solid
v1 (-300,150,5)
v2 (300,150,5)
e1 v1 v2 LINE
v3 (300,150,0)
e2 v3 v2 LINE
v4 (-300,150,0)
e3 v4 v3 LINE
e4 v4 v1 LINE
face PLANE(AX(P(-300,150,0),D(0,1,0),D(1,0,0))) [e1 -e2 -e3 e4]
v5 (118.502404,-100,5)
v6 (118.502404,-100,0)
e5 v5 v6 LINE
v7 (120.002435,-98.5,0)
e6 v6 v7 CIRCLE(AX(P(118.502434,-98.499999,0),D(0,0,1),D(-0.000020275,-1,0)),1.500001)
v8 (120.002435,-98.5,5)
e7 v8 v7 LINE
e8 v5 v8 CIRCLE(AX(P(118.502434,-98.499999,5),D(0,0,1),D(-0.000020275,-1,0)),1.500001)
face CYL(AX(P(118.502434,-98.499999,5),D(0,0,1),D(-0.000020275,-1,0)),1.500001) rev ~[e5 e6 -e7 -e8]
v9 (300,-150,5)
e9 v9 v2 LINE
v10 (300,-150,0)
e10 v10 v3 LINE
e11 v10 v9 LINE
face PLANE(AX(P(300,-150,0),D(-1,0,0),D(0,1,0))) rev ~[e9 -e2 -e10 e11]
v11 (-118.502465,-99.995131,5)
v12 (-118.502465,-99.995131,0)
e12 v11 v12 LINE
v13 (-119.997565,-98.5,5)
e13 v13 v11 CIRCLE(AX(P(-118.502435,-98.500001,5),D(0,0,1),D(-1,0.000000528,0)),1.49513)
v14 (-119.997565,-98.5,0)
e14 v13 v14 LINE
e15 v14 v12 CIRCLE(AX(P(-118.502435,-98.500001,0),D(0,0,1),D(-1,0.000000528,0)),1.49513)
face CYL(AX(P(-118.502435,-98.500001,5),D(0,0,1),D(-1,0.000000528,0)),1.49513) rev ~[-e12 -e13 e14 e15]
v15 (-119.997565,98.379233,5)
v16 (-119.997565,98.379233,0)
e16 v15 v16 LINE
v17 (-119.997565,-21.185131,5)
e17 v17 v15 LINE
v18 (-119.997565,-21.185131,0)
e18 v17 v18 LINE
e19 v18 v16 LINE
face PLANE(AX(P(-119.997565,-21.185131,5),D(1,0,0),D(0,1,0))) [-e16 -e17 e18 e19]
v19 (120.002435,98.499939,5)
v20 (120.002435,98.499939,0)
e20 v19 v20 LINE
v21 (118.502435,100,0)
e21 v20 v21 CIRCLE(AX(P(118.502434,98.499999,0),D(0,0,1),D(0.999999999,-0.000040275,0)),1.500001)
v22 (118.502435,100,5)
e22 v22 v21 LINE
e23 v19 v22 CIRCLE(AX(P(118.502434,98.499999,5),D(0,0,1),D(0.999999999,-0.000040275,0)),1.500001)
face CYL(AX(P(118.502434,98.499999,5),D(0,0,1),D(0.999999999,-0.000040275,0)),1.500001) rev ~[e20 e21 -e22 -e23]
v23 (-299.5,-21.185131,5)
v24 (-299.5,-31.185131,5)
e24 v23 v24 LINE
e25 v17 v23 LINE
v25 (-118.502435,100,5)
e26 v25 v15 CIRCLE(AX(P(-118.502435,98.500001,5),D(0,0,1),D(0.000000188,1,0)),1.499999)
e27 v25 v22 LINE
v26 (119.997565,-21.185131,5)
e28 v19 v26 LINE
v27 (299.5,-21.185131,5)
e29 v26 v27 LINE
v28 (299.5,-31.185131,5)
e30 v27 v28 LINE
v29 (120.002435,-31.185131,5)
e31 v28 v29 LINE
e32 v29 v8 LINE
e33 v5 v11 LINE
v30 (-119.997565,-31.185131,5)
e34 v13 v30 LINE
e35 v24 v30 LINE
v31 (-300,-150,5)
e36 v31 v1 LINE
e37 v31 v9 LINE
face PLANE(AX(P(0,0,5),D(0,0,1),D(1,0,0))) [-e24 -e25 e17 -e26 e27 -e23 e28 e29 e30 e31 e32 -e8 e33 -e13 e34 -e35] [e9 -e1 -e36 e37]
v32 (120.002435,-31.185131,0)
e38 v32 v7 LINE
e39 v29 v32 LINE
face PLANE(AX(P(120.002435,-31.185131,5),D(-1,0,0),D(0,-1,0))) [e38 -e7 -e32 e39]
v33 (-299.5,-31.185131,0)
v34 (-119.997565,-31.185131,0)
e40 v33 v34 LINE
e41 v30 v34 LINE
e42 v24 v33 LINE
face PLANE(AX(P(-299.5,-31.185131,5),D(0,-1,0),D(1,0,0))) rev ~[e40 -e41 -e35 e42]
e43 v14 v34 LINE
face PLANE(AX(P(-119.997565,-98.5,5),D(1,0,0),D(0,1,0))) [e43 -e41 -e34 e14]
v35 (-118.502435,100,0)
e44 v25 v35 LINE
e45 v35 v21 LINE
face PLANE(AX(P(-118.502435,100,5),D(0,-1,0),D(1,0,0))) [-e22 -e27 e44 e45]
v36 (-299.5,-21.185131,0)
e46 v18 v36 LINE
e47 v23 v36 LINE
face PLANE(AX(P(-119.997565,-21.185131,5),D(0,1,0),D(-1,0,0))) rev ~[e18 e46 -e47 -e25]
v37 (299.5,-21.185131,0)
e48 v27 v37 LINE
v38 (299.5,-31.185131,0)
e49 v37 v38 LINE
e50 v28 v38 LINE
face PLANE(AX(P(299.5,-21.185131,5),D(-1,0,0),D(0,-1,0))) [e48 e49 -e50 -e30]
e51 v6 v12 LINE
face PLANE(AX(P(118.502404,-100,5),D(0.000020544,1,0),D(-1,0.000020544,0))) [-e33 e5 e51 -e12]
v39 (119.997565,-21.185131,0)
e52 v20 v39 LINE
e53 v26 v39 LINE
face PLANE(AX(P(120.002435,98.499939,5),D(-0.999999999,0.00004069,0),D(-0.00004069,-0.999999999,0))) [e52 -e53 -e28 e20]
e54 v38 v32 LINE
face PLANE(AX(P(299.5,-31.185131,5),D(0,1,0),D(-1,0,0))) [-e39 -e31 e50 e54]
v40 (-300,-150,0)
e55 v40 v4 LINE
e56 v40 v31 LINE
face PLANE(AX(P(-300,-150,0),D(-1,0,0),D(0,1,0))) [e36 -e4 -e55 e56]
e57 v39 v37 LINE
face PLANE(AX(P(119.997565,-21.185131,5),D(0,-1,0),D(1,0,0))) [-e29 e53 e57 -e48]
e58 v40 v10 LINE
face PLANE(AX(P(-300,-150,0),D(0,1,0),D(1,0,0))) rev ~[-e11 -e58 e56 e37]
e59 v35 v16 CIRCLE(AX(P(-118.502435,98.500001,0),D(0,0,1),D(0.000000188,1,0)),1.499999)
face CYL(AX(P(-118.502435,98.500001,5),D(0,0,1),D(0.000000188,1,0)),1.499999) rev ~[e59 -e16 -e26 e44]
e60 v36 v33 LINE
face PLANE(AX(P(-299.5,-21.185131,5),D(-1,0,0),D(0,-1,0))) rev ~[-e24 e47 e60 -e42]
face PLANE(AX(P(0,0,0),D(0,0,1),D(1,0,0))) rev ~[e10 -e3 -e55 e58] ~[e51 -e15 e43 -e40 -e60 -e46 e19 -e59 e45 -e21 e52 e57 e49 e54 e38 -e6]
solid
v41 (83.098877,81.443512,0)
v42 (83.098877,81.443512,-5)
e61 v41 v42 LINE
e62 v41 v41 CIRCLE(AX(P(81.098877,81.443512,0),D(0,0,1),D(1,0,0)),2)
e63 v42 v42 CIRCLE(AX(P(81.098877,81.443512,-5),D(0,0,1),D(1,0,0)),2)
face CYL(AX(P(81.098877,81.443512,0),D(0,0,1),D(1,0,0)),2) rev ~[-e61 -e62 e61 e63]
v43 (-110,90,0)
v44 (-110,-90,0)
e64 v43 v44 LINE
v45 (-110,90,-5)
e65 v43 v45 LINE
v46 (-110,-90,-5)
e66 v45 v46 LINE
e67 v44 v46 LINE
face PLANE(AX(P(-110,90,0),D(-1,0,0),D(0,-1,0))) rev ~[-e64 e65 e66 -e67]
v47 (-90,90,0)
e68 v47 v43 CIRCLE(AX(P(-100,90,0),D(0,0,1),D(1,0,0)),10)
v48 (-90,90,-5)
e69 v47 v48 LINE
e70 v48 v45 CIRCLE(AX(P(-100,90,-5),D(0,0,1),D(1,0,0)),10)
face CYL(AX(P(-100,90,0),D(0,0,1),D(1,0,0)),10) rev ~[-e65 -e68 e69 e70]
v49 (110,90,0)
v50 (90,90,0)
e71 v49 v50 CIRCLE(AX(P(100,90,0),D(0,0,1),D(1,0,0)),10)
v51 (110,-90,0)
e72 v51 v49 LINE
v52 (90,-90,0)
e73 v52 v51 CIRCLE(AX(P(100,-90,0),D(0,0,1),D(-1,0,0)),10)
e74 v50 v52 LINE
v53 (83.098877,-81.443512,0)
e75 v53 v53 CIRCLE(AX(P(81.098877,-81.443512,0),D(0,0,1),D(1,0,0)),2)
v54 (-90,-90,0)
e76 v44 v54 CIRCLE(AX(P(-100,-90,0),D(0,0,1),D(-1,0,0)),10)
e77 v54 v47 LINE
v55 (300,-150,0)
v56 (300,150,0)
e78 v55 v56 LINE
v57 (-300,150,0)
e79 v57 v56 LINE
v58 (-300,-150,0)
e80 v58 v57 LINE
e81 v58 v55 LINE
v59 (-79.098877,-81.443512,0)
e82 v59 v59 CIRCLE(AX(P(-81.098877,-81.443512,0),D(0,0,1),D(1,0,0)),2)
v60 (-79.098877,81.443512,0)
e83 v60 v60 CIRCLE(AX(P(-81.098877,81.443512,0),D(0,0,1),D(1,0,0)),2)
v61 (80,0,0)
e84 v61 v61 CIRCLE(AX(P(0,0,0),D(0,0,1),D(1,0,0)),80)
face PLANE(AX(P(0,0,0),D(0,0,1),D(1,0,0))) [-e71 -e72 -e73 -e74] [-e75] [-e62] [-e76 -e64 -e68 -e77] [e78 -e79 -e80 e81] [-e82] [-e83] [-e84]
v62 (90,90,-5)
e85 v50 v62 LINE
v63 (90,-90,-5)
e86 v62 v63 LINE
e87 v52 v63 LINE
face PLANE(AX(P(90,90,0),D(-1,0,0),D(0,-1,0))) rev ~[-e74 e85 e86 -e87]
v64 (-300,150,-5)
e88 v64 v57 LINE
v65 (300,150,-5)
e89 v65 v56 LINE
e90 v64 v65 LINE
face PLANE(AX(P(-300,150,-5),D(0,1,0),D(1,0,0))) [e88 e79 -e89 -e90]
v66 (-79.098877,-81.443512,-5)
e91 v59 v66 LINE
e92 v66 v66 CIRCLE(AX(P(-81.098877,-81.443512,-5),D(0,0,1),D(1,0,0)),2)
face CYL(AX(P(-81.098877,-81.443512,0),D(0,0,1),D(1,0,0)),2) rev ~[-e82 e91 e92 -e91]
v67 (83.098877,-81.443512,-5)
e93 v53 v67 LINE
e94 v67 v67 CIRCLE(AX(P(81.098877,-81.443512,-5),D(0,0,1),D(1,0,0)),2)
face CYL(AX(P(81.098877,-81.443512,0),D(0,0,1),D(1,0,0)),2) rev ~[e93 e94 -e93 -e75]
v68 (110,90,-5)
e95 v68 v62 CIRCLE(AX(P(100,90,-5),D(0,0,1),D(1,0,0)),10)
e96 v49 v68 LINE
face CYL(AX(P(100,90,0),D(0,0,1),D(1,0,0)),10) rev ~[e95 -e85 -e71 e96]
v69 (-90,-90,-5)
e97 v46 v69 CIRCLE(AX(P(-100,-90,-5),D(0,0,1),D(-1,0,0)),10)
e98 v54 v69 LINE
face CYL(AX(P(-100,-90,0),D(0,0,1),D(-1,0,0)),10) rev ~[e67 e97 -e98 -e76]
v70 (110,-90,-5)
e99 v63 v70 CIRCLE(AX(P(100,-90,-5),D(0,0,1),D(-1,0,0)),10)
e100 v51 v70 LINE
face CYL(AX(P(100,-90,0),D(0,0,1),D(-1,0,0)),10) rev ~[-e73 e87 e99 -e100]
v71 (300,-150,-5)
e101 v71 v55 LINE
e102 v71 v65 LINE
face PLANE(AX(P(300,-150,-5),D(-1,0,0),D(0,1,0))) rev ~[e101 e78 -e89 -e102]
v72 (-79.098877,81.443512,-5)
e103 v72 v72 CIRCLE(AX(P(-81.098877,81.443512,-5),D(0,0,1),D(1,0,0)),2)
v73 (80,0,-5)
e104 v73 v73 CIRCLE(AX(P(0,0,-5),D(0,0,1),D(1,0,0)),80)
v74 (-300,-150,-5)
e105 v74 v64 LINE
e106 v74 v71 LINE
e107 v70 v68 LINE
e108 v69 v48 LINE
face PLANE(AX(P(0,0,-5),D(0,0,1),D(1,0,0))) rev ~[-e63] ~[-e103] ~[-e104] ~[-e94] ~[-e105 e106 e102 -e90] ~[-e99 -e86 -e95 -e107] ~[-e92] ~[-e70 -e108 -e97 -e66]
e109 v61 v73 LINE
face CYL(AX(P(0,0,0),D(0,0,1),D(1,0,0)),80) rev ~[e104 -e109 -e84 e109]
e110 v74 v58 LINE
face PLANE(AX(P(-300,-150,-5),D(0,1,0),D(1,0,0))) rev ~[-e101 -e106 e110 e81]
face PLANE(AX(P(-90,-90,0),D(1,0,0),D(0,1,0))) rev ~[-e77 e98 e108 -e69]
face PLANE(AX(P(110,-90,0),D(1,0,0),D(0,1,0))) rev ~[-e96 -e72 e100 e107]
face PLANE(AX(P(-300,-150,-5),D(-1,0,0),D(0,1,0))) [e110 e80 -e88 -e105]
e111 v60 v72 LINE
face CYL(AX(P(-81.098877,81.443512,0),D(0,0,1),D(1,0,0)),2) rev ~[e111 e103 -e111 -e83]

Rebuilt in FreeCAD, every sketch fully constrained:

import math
import FreeCAD as App
import Part
import Sketcher
from FreeCAD import Vector
Q = App.Units.Quantity

doc = App.newDocument("Part")
body = doc.addObject("PartDesign::Body", "Body")

# Sketch on XY plane
sketch1 = body.newObject("Sketcher::SketchObject", "Sketch")
sketch1.AttachmentSupport = (doc.getObject("XY_Plane"), [""])
sketch1.MapMode = "FlatFace"
sketch1.addGeometry([
    Part.LineSegment(Vector(-300, 150, 0), Vector(-300, -150, 0)),
    Part.LineSegment(Vector(-300, -150, 0), Vector(300, -150, 0)),
    Part.LineSegment(Vector(300, -150, 0), Vector(300, 150, 0)),
    Part.LineSegment(Vector(300, 150, 0), Vector(-300, 150, 0)),
], False)
sketch1.addConstraint([
    Sketcher.Constraint("Coincident", 0, 2, 1, 1),
    Sketcher.Constraint("Coincident", 1, 2, 2, 1),
    Sketcher.Constraint("Coincident", 2, 2, 3, 1),
    Sketcher.Constraint("Coincident", 3, 2, 0, 1),
    Sketcher.Constraint("Vertical", 0),
    Sketcher.Constraint("Horizontal", 1),
    Sketcher.Constraint("Vertical", 2),
    Sketcher.Constraint("Horizontal", 3),
    Sketcher.Constraint("Symmetric", 0, 2, 2, 2, -1, 1),
    Sketcher.Constraint("DistanceX", 1, 1, 1, 2, Q("600 mm")),
    Sketcher.Constraint("DistanceY", 0, 2, 0, 1, Q("300 mm")),
])
pad1 = body.newObject("PartDesign::Pad", "Pad")
pad1.Profile = sketch1
pad1.Length = 5

# Sketch on XY plane
sketch2 = body.newObject("Sketcher::SketchObject", "Sketch001")
sketch2.AttachmentSupport = (doc.getObject("XY_Plane"), [""])
sketch2.MapMode = "FlatFace"
sketch2.AttachmentOffset = App.Placement(Vector(0, 0, 5), App.Rotation())
sketch2.addGeometry([
    Part.LineSegment(Vector(118.5, 100, 0), Vector(-118.5, 100, 0)),  # 0
    Part.ArcOfCircle(Part.Circle(Vector(-118.5, 98.5, 0), Vector(0, 0, 1), 1.5), math.radians(90), math.radians(185)),  # 1
    Part.LineSegment(Vector(-120, 98.4, 0), Vector(-120, -21.2, 0)),  # 2
    Part.LineSegment(Vector(-120, -21.2, 0), Vector(-299.5, -21.2, 0)),  # 3
    Part.LineSegment(Vector(-299.5, -21.2, 0), Vector(-299.5, -31.2, 0)),  # 4
    Part.LineSegment(Vector(-299.5, -31.2, 0), Vector(-120, -31.2, 0)),  # 5
    Part.LineSegment(Vector(-120, -31.2, 0), Vector(-120, -98.5, 0)),  # 6
    Part.ArcOfCircle(Part.Circle(Vector(-118.5, -98.5, 0), Vector(0, 0, 1), 1.5), math.radians(180), math.radians(270)),  # 7
    Part.LineSegment(Vector(-118.5, -100, 0), Vector(118.5, -100, 0)),  # 8
    Part.ArcOfCircle(Part.Circle(Vector(118.5, -98.5, 0), Vector(0, 0, 1), 1.5), math.radians(-90), math.radians(0)),  # 9
    Part.LineSegment(Vector(120, -98.5, 0), Vector(120, -31.2, 0)),  # 10
    Part.LineSegment(Vector(120, -31.2, 0), Vector(299.5, -31.2, 0)),  # 11
    Part.LineSegment(Vector(299.5, -31.2, 0), Vector(299.5, -21.2, 0)),  # 12
    Part.LineSegment(Vector(299.5, -21.2, 0), Vector(120, -21.2, 0)),  # 13
    Part.LineSegment(Vector(120, -21.2, 0), Vector(120, 98.5, 0)),  # 14
    Part.ArcOfCircle(Part.Circle(Vector(118.5, 98.5, 0), Vector(0, 0, 1), 1.5), math.radians(0), math.radians(90)),  # 15
], False)
sketch2.addConstraint([
    Sketcher.Constraint("Tangent", 0, 2, 1, 1),
    Sketcher.Constraint("Coincident", 1, 2, 2, 1),
    Sketcher.Constraint("Coincident", 2, 2, 3, 1),
    Sketcher.Constraint("Coincident", 3, 2, 4, 1),
    Sketcher.Constraint("Coincident", 4, 2, 5, 1),
    Sketcher.Constraint("Coincident", 5, 2, 6, 1),
    Sketcher.Constraint("Tangent", 6, 2, 7, 1),
    Sketcher.Constraint("Tangent", 7, 2, 8, 1),
    Sketcher.Constraint("Tangent", 8, 2, 9, 1),
    Sketcher.Constraint("Tangent", 9, 2, 10, 1),
    Sketcher.Constraint("Coincident", 10, 2, 11, 1),
    Sketcher.Constraint("Coincident", 11, 2, 12, 1),
    Sketcher.Constraint("Coincident", 12, 2, 13, 1),
    Sketcher.Constraint("Coincident", 13, 2, 14, 1),
    Sketcher.Constraint("Tangent", 14, 2, 15, 1),
    Sketcher.Constraint("Tangent", 15, 2, 0, 1),
    Sketcher.Constraint("Horizontal", 0),
    Sketcher.Constraint("Vertical", 2),
    Sketcher.Constraint("Horizontal", 3),
    Sketcher.Constraint("Vertical", 4),
    Sketcher.Constraint("Horizontal", 5),
    Sketcher.Constraint("Vertical", 6),
    Sketcher.Constraint("Vertical", 10),
    Sketcher.Constraint("Horizontal", 11),
    Sketcher.Constraint("Vertical", 12),
    Sketcher.Constraint("Horizontal", 13),
    Sketcher.Constraint("Equal", 1, 9),
    Sketcher.Constraint("Equal", 9, 15),
    Sketcher.Constraint("Symmetric", 1, 3, 9, 3, -1, 1),
    Sketcher.Constraint("Symmetric", 7, 3, 15, 3, -1, 1),
    Sketcher.Constraint("Symmetric", 4, 2, 11, 2, -2),
    Sketcher.Constraint("Symmetric", 2, 2, 13, 2, -2),
    Sketcher.Constraint("Vertical", 1, 3, 7, 3),
    Sketcher.Constraint("Vertical", 2, 2, 5, 2),
    Sketcher.Constraint("Radius", 1, Q("1.499999 mm")),
    Sketcher.Constraint("DistanceY", 4, 2, 4, 1, Q("10 mm")),
    Sketcher.Constraint("DistanceY", -1, 1, 0, 2, Q("100 mm")),
    Sketcher.Constraint("DistanceX", 5, 2, 10, 2, Q("240 mm")),
    Sketcher.Constraint("DistanceX", 3, 2, -1, 1, Q("299.5 mm")),
    Sketcher.Constraint("Radius", 7, Q("1.49513 mm")),
    Sketcher.Constraint("DistanceY", 7, 2, 5, 2, Q("68.81 mm")),
])
pocket1 = body.newObject("PartDesign::Pocket", "Pocket")
pocket1.Profile = sketch2
pocket1.Length = 5
body2 = doc.addObject("PartDesign::Body", "Body001")

# Sketch on XY plane
sketch3 = body2.newObject("Sketcher::SketchObject", "Sketch002")
sketch3.AttachmentSupport = (doc.getObject("XY_Plane001"), [""])
sketch3.MapMode = "FlatFace"
sketch3.AttachmentOffset = App.Placement(Vector(0, 0, -5), App.Rotation())
sketch3.addGeometry([
    Part.LineSegment(Vector(-300, 150, 0), Vector(-300, -150, 0)),
    Part.LineSegment(Vector(-300, -150, 0), Vector(300, -150, 0)),
    Part.LineSegment(Vector(300, -150, 0), Vector(300, 150, 0)),
    Part.LineSegment(Vector(300, 150, 0), Vector(-300, 150, 0)),
], False)
sketch3.addConstraint([
    Sketcher.Constraint("Coincident", 0, 2, 1, 1),
    Sketcher.Constraint("Coincident", 1, 2, 2, 1),
    Sketcher.Constraint("Coincident", 2, 2, 3, 1),
    Sketcher.Constraint("Coincident", 3, 2, 0, 1),
    Sketcher.Constraint("Vertical", 0),
    Sketcher.Constraint("Horizontal", 1),
    Sketcher.Constraint("Vertical", 2),
    Sketcher.Constraint("Horizontal", 3),
    Sketcher.Constraint("Symmetric", 0, 2, 2, 2, -1, 1),
    Sketcher.Constraint("DistanceX", 1, 1, 1, 2, Q("600 mm")),
    Sketcher.Constraint("DistanceY", 0, 2, 0, 1, Q("300 mm")),
])
pad2 = body2.newObject("PartDesign::Pad", "Pad001")
pad2.Profile = sketch3
pad2.Length = 5

# Sketch on XY plane
sketch4 = body2.newObject("Sketcher::SketchObject", "Sketch003")
sketch4.AttachmentSupport = (doc.getObject("XY_Plane001"), [""])
sketch4.MapMode = "FlatFace"
sketch4.addGeometry([
    Part.Circle(Vector(0, 0, 0), Vector(0, 0, 1), 80),  # 0
    Part.Circle(Vector(-81.1, 81.4, 0), Vector(0, 0, 1), 2),  # 1
    Part.Circle(Vector(81.1, 81.4, 0), Vector(0, 0, 1), 2),  # 2
    Part.Circle(Vector(-81.1, -81.4, 0), Vector(0, 0, 1), 2),  # 3
    Part.Circle(Vector(81.1, -81.4, 0), Vector(0, 0, 1), 2),  # 4
    Part.ArcOfCircle(Part.Circle(Vector(-100, 90, 0), Vector(0, 0, 1), 10), math.radians(0), math.radians(180)),  # 5
    Part.LineSegment(Vector(-110, 90, 0), Vector(-110, -90, 0)),  # 6
    Part.ArcOfCircle(Part.Circle(Vector(-100, -90, 0), Vector(0, 0, 1), 10), math.radians(180), math.radians(360)),  # 7
    Part.LineSegment(Vector(-90, -90, 0), Vector(-90, 90, 0)),  # 8
    Part.ArcOfCircle(Part.Circle(Vector(100, 90, 0), Vector(0, 0, 1), 10), math.radians(0), math.radians(180)),  # 9
    Part.LineSegment(Vector(90, 90, 0), Vector(90, -90, 0)),  # 10
    Part.ArcOfCircle(Part.Circle(Vector(100, -90, 0), Vector(0, 0, 1), 10), math.radians(180), math.radians(360)),  # 11
    Part.LineSegment(Vector(110, -90, 0), Vector(110, 90, 0)),  # 12
], False)
sketch4.addConstraint([
    Sketcher.Constraint("Tangent", 5, 2, 6, 1),
    Sketcher.Constraint("Tangent", 6, 2, 7, 1),
    Sketcher.Constraint("Tangent", 7, 2, 8, 1),
    Sketcher.Constraint("Tangent", 8, 2, 5, 1),
    Sketcher.Constraint("Tangent", 9, 2, 10, 1),
    Sketcher.Constraint("Tangent", 10, 2, 11, 1),
    Sketcher.Constraint("Tangent", 11, 2, 12, 1),
    Sketcher.Constraint("Tangent", 12, 2, 9, 1),
    Sketcher.Constraint("Vertical", 6),
    Sketcher.Constraint("Vertical", 8),
    Sketcher.Constraint("Vertical", 10),
    Sketcher.Constraint("Vertical", 12),
    Sketcher.Constraint("Coincident", 0, 3, -1, 1),
    Sketcher.Constraint("Equal", 1, 2),
    Sketcher.Constraint("Equal", 2, 3),
    Sketcher.Constraint("Equal", 3, 4),
    Sketcher.Constraint("Equal", 7, 9),
    Sketcher.Constraint("Symmetric", 2, 3, 3, 3, -1, 1),
    Sketcher.Constraint("Symmetric", 1, 3, 4, 3, -1, 1),
    Sketcher.Constraint("Symmetric", 7, 3, 9, 3, -1, 1),
    Sketcher.Constraint("Symmetric", 1, 3, 2, 3, -2),
    Sketcher.Constraint("Horizontal", 5, 3, 9, 3),
    Sketcher.Constraint("Horizontal", 7, 3, 11, 3),
    Sketcher.Constraint("Diameter", 0, Q("160 mm")),
    Sketcher.Constraint("Diameter", 1, Q("4 mm")),
    Sketcher.Constraint("Radius", 5, Q("10 mm")),
    Sketcher.Constraint("DistanceY", 6, 2, 6, 1, Q("180 mm")),
    Sketcher.Constraint("DistanceX", 5, 3, -1, 1, Q("100 mm")),
    Sketcher.Constraint("DistanceY", -1, 1, 1, 3, Q("81.443512 mm")),
    Sketcher.Constraint("DistanceX", 1, 3, -1, 1, Q("81.098877 mm")),
])
pocket2 = body2.newObject("PartDesign::Pocket", "Pocket001")
pocket2.Profile = sketch4
pocket2.Length = 5

doc.recompute()
